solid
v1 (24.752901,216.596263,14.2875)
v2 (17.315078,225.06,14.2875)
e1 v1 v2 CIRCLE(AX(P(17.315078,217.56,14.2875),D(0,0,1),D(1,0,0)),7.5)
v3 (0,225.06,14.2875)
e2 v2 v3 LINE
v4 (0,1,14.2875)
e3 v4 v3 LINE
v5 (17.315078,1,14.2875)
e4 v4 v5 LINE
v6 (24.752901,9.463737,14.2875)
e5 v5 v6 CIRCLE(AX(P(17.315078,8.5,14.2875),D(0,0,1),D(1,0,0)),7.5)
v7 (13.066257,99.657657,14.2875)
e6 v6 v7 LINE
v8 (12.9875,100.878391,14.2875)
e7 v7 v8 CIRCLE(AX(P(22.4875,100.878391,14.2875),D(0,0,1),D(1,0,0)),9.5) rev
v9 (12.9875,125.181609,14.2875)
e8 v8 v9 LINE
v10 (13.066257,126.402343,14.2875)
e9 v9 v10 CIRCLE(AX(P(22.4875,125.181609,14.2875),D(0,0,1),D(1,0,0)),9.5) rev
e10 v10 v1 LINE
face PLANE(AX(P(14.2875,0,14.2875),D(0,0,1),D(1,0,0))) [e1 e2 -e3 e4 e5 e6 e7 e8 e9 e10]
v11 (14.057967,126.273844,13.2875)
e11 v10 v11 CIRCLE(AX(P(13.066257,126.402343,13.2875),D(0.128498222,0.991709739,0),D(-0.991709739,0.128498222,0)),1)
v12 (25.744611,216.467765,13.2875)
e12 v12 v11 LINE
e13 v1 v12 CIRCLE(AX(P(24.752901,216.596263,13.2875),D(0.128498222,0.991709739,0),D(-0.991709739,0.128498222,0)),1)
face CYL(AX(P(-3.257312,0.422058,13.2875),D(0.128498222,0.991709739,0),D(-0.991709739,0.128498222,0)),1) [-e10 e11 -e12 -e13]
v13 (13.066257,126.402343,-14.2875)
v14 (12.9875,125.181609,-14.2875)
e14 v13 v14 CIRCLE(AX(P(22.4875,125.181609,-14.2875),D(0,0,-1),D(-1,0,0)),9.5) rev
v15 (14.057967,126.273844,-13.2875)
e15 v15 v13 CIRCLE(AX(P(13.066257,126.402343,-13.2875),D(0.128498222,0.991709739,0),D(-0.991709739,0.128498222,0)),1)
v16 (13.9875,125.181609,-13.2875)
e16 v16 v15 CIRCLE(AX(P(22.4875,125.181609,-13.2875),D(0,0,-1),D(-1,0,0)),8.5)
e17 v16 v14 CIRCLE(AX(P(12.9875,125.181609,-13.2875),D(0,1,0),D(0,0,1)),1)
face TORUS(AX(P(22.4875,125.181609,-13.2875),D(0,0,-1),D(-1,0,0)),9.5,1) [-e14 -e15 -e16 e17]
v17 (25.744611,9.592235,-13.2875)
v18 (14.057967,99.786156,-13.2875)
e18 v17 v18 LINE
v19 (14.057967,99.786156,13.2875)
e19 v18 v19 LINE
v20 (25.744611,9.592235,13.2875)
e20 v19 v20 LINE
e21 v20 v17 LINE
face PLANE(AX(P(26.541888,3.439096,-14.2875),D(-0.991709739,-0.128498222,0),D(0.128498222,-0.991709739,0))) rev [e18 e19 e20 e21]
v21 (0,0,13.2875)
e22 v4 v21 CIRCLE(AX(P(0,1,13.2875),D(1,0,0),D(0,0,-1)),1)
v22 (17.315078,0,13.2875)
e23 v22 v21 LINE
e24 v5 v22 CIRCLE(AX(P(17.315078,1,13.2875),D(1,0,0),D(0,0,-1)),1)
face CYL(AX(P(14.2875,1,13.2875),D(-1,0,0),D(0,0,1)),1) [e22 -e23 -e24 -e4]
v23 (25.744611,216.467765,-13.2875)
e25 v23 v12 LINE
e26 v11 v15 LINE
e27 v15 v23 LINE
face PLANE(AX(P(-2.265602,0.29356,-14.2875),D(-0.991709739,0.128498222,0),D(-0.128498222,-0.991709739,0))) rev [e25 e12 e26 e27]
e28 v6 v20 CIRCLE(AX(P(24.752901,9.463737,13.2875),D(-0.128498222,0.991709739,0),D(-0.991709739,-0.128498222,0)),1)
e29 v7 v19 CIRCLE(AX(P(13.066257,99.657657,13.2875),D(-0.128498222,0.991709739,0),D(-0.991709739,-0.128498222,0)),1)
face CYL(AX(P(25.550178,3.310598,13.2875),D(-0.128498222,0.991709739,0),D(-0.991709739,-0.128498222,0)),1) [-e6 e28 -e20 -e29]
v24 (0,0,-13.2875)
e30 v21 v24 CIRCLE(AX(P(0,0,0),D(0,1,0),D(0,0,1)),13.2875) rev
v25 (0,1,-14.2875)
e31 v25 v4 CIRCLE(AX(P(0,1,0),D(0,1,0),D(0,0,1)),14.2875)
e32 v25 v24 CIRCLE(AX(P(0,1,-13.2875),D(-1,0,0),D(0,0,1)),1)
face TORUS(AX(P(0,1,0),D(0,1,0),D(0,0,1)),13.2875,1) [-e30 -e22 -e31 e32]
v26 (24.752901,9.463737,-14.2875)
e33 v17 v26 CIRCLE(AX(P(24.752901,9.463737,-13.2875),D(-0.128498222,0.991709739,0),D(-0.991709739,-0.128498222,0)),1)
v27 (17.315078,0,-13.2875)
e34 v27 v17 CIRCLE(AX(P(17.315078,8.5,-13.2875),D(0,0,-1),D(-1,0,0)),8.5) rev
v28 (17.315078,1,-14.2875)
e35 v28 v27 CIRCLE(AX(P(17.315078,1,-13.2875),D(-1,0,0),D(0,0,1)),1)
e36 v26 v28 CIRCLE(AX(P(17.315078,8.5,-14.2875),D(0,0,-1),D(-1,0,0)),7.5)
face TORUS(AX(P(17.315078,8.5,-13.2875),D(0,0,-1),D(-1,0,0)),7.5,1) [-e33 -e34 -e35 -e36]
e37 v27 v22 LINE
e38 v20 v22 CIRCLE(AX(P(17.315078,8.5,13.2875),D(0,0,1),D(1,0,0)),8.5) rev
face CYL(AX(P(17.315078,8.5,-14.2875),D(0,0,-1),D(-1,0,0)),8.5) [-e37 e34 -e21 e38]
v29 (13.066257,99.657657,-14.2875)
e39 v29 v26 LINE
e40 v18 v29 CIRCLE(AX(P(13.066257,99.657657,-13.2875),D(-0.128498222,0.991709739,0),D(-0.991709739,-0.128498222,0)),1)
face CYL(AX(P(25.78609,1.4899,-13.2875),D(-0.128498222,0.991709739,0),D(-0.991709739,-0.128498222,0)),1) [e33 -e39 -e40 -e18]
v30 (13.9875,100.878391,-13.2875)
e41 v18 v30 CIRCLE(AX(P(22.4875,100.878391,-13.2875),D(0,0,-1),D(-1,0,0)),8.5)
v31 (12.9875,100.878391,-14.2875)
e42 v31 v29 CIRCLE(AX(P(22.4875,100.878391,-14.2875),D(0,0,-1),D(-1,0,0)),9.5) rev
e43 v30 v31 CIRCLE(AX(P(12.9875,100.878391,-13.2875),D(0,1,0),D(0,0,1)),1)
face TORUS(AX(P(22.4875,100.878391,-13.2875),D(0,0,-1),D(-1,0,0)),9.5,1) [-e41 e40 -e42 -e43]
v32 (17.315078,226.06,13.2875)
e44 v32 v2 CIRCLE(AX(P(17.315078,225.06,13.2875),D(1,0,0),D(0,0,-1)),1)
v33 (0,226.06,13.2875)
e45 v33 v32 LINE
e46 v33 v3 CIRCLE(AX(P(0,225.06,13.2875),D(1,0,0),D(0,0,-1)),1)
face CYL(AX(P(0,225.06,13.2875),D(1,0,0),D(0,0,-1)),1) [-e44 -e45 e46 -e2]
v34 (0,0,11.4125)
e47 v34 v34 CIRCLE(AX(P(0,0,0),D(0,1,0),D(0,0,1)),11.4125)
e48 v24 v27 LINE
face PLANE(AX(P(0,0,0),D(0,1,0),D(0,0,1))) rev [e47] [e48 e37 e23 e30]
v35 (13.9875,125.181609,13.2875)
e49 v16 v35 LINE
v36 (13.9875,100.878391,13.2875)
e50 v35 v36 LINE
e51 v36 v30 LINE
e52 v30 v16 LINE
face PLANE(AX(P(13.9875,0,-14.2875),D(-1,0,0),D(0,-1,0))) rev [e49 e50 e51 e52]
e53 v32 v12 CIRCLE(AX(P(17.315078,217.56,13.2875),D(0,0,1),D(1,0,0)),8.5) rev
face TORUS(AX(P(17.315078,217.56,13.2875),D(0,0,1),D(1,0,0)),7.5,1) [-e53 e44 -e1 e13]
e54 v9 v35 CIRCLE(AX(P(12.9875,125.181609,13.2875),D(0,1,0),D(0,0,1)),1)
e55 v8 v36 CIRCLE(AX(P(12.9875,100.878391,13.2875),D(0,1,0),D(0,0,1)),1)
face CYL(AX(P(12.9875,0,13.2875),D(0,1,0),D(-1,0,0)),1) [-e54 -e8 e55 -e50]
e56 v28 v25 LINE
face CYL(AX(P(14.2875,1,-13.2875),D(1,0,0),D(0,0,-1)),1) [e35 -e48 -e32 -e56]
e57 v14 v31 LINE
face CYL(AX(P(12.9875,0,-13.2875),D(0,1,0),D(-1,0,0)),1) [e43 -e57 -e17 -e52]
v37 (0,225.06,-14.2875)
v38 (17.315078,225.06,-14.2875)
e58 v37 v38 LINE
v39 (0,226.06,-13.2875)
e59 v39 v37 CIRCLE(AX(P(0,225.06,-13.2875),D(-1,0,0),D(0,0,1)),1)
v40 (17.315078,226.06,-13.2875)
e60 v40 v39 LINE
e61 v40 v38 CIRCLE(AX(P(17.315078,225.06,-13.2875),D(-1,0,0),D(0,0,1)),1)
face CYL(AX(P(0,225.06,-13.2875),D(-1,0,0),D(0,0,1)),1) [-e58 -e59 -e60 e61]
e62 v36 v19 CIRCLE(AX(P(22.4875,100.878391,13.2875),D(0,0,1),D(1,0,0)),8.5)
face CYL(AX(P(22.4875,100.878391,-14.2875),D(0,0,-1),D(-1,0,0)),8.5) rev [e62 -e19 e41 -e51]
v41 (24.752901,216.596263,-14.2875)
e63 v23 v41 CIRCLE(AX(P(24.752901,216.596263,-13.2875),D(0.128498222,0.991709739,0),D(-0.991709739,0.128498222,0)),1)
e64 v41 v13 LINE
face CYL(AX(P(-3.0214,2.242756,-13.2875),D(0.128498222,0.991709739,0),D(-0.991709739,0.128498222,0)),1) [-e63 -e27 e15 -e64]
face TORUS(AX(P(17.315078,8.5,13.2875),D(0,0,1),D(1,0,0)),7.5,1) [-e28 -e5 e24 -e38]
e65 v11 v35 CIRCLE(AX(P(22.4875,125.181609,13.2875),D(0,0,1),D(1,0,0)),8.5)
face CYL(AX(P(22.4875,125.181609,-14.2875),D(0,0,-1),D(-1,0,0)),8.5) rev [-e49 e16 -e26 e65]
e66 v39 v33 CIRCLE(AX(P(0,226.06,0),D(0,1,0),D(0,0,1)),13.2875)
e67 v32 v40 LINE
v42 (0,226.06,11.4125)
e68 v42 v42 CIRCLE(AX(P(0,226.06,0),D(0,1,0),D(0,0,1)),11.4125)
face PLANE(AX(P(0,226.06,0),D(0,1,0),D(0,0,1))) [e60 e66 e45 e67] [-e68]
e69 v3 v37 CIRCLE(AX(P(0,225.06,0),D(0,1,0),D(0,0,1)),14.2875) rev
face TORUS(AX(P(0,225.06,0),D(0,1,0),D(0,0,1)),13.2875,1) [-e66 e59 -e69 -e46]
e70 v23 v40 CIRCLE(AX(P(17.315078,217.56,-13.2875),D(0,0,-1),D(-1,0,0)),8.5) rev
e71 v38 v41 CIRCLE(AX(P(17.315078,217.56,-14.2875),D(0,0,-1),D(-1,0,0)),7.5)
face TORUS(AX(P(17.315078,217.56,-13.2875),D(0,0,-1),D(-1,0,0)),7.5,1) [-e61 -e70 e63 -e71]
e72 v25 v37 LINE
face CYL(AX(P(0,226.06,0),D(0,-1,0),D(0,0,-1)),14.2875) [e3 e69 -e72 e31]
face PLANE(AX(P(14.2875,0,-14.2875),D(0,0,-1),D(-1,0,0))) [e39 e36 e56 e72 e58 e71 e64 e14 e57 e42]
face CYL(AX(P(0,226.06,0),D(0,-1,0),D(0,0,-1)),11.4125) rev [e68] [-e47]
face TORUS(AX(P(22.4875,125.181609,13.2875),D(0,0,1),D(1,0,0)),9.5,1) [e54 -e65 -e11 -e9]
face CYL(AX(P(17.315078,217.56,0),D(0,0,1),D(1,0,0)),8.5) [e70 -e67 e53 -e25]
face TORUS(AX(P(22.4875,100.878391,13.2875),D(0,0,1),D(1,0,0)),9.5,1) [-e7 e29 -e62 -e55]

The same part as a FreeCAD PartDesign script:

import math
import FreeCAD as App
import Part
import Sketcher
Q = App.Units.Quantity


def edges_at(feature, points):
    """Names of the edges that pass closest to the given points."""
    edges = feature.Shape.Edges
    near = lambda p: min(range(len(edges)), key=lambda i: edges[i].distToShape(Part.Vertex(*p))[0])
    return sorted({f"Edge{near(p) + 1}" for p in points})


def add_polygon(sketch, points):
    """Adds a closed chain of lines whose ends are joined by coincident constraints."""
    first, n = sketch.GeometryCount, len(points)
    for a, b in zip(points, points[1:] + points[:1]):
        sketch.addGeometry(Part.LineSegment(App.Vector(*a, 0), App.Vector(*b, 0)), False)
    for i in range(n):
        sketch.addConstraint(Sketcher.Constraint("Coincident", first + i, 2, first + (i + 1) % n, 1))

doc = App.newDocument("Part")
body = doc.addObject("PartDesign::Body", "Body")

# Sketch on XZ plane
sketch1 = body.newObject("Sketcher::SketchObject", "Sketch")
sketch1.AttachmentSupport = (doc.getObject("XZ_Plane"), [""])
sketch1.MapMode = "FlatFace"
sketch1.addGeometry(Part.Circle(App.Vector(0, 0, 0), App.Vector(0, 0, 1), 14), False)
sketch1.addGeometry(Part.Circle(App.Vector(0, 0, 0), App.Vector(0, 0, 1), 11), False)
sketch1.addConstraint(Sketcher.Constraint("Coincident", 0, 3, -1, 1))
sketch1.addConstraint(Sketcher.Constraint("Coincident", 1, 3, -1, 1))
sketch1.addConstraint(Sketcher.Constraint("Diameter", 0, Q("1.125 in")))
sketch1.addConstraint(Sketcher.Constraint("Diameter", 1, 22.825))
pad1 = body.newObject("PartDesign::Pad", "Pad")
pad1.Profile = sketch1
pad1.Length = Q("8.9 in")
pad1.Reversed = True
body2 = doc.addObject("PartDesign::Body", "Body001")

# Sketch on YZ plane
sketch2 = body2.newObject("Sketcher::SketchObject", "Sketch001")
sketch2.AttachmentSupport = (doc.getObject("YZ_Plane001"), [""])
sketch2.MapMode = "FlatFace"
sketch2.AttachmentOffset = App.Placement(App.Vector(0, 0, 0.5625 * 25.4), App.Rotation())
add_polygon(sketch2, [(226, 14), (0, 14), (0, -14), (226, -14)])  # lines 0-3
sketch2.addConstraint(Sketcher.Constraint("Horizontal", 0))
sketch2.addConstraint(Sketcher.Constraint("Vertical", 1))
sketch2.addConstraint(Sketcher.Constraint("Horizontal", 2))
sketch2.addConstraint(Sketcher.Constraint("Vertical", 3))
sketch2.addConstraint(Sketcher.Constraint("Symmetric", 0, 2, 1, 2, -1, 1))
sketch2.addConstraint(Sketcher.Constraint("DistanceX", 0, 2, 0, 1, Q("8.9 in")))
sketch2.addConstraint(Sketcher.Constraint("DistanceY", 1, 2, 1, 1, Q("1.125 in")))
pad2 = body2.newObject("PartDesign::Pad", "Pad001")
pad2.Profile = sketch2
pad2.Length = Q("0.5 in")
body.AllowCompound = True
doc.recompute()

boolean = body.newObject("PartDesign::Boolean", "Boolean")
boolean.Type = "Fuse"
boolean.addObjects([body2])

# Sketch on XZ plane
sketch3 = body.newObject("Sketcher::SketchObject", "Sketch002")
sketch3.AttachmentSupport = (doc.getObject("XZ_Plane"), [""])
sketch3.MapMode = "FlatFace"
sketch3.AttachmentOffset = App.Placement(App.Vector(0, 0, -8.9 * 25.4), App.Rotation())
sketch3.addGeometry(Part.ArcOfCircle(Part.Circle(App.Vector(0, 0, 0), App.Vector(0, 0, 1), 14), math.radians(-90), math.radians(90)), False)
sketch3.addGeometry(Part.LineSegment(App.Vector(0, 14, 0), App.Vector(27, 14, 0)), False)
sketch3.addGeometry(Part.LineSegment(App.Vector(27, 14, 0), App.Vector(27, -14, 0)), False)
sketch3.addGeometry(Part.LineSegment(App.Vector(27, -14, 0), App.Vector(0, -14, 0)), False)
sketch3.addConstraint(Sketcher.Constraint("Tangent", 0, 2, 1, 1))
sketch3.addConstraint(Sketcher.Constraint("Coincident", 1, 2, 2, 1))
sketch3.addConstraint(Sketcher.Constraint("Coincident", 2, 2, 3, 1))
sketch3.addConstraint(Sketcher.Constraint("Tangent", 3, 2, 0, 1))
sketch3.addConstraint(Sketcher.Constraint("Horizontal", 1))
sketch3.addConstraint(Sketcher.Constraint("Vertical", 2))
sketch3.addConstraint(Sketcher.Constraint("Horizontal", 3))
sketch3.addConstraint(Sketcher.Constraint("Coincident", 0, 3, -1, 1))
sketch3.addConstraint(Sketcher.Constraint("Radius", 0, Q("0.5625 in")))
sketch3.addConstraint(Sketcher.Constraint("DistanceX", 1, 1, 1, 2, Q("1.0625 in")))
pad3 = body.newObject("PartDesign::Pad", "Pad002")
pad3.Profile = sketch3
pad3.Type = "UpToLast"

# Sketch on XY plane
sketch4 = body.newObject("Sketcher::SketchObject", "Sketch003")
sketch4.AttachmentSupport = (doc.getObject("XY_Plane"), [""])
sketch4.MapMode = "FlatFace"
sketch4.AttachmentOffset = App.Placement(App.Vector(0, 0, 0.5625 * 25.4), App.Rotation())
add_polygon(sketch4, [(27, 226), (14, 126), (14, 100), (27, 0)])  # lines 0-3
sketch4.addConstraint(Sketcher.Constraint("Vertical", 1))
sketch4.addConstraint(Sketcher.Constraint("Vertical", 3))
sketch4.addConstraint(Sketcher.Constraint("PointOnObject", 2, 2, -1))
sketch4.addConstraint(Sketcher.Constraint("Equal", 0, 2))
sketch4.addConstraint(Sketcher.Constraint("DistanceY", 1, 2, 1, 1, Q("1 in")))
sketch4.addConstraint(Sketcher.Constraint("DistanceY", 3, 1, 3, 2, Q("8.9 in")))
sketch4.addConstraint(Sketcher.Constraint("DistanceX", -1, 1, 2, 2, Q("1.0625 in")))
sketch4.addConstraint(Sketcher.Constraint("DistanceX", -1, 1, 0, 2, 13.9875))
pocket1 = body.newObject("PartDesign::Pocket", "Pocket")
pocket1.Profile = sketch4
pocket1.Type = "ThroughAll"
doc.recompute()

fillet = body.newObject("PartDesign::Fillet", "Fillet")
fillet.Base = (pocket1, edges_at(pocket1, [(26.988, 0, 0), (26.988, 226.06, 0)]))
fillet.Radius = 8.5
doc.recompute()

fillet2 = body.newObject("PartDesign::Fillet", "Fillet001")
fillet2.Base = (fillet, edges_at(fillet, [(13.988, 125.73, 0), (13.988, 100.33, 0)]))
fillet2.Radius = 8.5
doc.recompute()

fillet3 = body.newObject("PartDesign::Fillet", "Fillet002")
fillet3.Base = (fillet2, edges_at(fillet2, [
    (-14.287, 0, 0),
    (8.658, 0, 14.287),
    (8.658, 226.06, 14.287),
    (19.901, 171.371, -14.287),
    (8.658, 0, -14.287),
    (8.658, 226.06, -14.287),
    (23.7, 223.171, -14.287),
    (23.7, 2.889, -14.287),
    (19.901, 171.371, 14.287),
    (23.7, 223.171, 14.287),
    (23.7, 2.889, 14.287),
    (19.901, 54.689, 14.287),
    (19.901, 54.689, -14.287),
    (13.988, 113.03, 14.287),
    (13.988, 113.03, -14.287),
    (14.005, 100.331, 14.287),
    (14.005, 100.331, -14.287),
    (14.005, 125.729, 14.287),
    (14.005, 125.729, -14.287),
    (-14.287, 226.06, 0),
]))
fillet3.Radius = 1

doc.recompute()
